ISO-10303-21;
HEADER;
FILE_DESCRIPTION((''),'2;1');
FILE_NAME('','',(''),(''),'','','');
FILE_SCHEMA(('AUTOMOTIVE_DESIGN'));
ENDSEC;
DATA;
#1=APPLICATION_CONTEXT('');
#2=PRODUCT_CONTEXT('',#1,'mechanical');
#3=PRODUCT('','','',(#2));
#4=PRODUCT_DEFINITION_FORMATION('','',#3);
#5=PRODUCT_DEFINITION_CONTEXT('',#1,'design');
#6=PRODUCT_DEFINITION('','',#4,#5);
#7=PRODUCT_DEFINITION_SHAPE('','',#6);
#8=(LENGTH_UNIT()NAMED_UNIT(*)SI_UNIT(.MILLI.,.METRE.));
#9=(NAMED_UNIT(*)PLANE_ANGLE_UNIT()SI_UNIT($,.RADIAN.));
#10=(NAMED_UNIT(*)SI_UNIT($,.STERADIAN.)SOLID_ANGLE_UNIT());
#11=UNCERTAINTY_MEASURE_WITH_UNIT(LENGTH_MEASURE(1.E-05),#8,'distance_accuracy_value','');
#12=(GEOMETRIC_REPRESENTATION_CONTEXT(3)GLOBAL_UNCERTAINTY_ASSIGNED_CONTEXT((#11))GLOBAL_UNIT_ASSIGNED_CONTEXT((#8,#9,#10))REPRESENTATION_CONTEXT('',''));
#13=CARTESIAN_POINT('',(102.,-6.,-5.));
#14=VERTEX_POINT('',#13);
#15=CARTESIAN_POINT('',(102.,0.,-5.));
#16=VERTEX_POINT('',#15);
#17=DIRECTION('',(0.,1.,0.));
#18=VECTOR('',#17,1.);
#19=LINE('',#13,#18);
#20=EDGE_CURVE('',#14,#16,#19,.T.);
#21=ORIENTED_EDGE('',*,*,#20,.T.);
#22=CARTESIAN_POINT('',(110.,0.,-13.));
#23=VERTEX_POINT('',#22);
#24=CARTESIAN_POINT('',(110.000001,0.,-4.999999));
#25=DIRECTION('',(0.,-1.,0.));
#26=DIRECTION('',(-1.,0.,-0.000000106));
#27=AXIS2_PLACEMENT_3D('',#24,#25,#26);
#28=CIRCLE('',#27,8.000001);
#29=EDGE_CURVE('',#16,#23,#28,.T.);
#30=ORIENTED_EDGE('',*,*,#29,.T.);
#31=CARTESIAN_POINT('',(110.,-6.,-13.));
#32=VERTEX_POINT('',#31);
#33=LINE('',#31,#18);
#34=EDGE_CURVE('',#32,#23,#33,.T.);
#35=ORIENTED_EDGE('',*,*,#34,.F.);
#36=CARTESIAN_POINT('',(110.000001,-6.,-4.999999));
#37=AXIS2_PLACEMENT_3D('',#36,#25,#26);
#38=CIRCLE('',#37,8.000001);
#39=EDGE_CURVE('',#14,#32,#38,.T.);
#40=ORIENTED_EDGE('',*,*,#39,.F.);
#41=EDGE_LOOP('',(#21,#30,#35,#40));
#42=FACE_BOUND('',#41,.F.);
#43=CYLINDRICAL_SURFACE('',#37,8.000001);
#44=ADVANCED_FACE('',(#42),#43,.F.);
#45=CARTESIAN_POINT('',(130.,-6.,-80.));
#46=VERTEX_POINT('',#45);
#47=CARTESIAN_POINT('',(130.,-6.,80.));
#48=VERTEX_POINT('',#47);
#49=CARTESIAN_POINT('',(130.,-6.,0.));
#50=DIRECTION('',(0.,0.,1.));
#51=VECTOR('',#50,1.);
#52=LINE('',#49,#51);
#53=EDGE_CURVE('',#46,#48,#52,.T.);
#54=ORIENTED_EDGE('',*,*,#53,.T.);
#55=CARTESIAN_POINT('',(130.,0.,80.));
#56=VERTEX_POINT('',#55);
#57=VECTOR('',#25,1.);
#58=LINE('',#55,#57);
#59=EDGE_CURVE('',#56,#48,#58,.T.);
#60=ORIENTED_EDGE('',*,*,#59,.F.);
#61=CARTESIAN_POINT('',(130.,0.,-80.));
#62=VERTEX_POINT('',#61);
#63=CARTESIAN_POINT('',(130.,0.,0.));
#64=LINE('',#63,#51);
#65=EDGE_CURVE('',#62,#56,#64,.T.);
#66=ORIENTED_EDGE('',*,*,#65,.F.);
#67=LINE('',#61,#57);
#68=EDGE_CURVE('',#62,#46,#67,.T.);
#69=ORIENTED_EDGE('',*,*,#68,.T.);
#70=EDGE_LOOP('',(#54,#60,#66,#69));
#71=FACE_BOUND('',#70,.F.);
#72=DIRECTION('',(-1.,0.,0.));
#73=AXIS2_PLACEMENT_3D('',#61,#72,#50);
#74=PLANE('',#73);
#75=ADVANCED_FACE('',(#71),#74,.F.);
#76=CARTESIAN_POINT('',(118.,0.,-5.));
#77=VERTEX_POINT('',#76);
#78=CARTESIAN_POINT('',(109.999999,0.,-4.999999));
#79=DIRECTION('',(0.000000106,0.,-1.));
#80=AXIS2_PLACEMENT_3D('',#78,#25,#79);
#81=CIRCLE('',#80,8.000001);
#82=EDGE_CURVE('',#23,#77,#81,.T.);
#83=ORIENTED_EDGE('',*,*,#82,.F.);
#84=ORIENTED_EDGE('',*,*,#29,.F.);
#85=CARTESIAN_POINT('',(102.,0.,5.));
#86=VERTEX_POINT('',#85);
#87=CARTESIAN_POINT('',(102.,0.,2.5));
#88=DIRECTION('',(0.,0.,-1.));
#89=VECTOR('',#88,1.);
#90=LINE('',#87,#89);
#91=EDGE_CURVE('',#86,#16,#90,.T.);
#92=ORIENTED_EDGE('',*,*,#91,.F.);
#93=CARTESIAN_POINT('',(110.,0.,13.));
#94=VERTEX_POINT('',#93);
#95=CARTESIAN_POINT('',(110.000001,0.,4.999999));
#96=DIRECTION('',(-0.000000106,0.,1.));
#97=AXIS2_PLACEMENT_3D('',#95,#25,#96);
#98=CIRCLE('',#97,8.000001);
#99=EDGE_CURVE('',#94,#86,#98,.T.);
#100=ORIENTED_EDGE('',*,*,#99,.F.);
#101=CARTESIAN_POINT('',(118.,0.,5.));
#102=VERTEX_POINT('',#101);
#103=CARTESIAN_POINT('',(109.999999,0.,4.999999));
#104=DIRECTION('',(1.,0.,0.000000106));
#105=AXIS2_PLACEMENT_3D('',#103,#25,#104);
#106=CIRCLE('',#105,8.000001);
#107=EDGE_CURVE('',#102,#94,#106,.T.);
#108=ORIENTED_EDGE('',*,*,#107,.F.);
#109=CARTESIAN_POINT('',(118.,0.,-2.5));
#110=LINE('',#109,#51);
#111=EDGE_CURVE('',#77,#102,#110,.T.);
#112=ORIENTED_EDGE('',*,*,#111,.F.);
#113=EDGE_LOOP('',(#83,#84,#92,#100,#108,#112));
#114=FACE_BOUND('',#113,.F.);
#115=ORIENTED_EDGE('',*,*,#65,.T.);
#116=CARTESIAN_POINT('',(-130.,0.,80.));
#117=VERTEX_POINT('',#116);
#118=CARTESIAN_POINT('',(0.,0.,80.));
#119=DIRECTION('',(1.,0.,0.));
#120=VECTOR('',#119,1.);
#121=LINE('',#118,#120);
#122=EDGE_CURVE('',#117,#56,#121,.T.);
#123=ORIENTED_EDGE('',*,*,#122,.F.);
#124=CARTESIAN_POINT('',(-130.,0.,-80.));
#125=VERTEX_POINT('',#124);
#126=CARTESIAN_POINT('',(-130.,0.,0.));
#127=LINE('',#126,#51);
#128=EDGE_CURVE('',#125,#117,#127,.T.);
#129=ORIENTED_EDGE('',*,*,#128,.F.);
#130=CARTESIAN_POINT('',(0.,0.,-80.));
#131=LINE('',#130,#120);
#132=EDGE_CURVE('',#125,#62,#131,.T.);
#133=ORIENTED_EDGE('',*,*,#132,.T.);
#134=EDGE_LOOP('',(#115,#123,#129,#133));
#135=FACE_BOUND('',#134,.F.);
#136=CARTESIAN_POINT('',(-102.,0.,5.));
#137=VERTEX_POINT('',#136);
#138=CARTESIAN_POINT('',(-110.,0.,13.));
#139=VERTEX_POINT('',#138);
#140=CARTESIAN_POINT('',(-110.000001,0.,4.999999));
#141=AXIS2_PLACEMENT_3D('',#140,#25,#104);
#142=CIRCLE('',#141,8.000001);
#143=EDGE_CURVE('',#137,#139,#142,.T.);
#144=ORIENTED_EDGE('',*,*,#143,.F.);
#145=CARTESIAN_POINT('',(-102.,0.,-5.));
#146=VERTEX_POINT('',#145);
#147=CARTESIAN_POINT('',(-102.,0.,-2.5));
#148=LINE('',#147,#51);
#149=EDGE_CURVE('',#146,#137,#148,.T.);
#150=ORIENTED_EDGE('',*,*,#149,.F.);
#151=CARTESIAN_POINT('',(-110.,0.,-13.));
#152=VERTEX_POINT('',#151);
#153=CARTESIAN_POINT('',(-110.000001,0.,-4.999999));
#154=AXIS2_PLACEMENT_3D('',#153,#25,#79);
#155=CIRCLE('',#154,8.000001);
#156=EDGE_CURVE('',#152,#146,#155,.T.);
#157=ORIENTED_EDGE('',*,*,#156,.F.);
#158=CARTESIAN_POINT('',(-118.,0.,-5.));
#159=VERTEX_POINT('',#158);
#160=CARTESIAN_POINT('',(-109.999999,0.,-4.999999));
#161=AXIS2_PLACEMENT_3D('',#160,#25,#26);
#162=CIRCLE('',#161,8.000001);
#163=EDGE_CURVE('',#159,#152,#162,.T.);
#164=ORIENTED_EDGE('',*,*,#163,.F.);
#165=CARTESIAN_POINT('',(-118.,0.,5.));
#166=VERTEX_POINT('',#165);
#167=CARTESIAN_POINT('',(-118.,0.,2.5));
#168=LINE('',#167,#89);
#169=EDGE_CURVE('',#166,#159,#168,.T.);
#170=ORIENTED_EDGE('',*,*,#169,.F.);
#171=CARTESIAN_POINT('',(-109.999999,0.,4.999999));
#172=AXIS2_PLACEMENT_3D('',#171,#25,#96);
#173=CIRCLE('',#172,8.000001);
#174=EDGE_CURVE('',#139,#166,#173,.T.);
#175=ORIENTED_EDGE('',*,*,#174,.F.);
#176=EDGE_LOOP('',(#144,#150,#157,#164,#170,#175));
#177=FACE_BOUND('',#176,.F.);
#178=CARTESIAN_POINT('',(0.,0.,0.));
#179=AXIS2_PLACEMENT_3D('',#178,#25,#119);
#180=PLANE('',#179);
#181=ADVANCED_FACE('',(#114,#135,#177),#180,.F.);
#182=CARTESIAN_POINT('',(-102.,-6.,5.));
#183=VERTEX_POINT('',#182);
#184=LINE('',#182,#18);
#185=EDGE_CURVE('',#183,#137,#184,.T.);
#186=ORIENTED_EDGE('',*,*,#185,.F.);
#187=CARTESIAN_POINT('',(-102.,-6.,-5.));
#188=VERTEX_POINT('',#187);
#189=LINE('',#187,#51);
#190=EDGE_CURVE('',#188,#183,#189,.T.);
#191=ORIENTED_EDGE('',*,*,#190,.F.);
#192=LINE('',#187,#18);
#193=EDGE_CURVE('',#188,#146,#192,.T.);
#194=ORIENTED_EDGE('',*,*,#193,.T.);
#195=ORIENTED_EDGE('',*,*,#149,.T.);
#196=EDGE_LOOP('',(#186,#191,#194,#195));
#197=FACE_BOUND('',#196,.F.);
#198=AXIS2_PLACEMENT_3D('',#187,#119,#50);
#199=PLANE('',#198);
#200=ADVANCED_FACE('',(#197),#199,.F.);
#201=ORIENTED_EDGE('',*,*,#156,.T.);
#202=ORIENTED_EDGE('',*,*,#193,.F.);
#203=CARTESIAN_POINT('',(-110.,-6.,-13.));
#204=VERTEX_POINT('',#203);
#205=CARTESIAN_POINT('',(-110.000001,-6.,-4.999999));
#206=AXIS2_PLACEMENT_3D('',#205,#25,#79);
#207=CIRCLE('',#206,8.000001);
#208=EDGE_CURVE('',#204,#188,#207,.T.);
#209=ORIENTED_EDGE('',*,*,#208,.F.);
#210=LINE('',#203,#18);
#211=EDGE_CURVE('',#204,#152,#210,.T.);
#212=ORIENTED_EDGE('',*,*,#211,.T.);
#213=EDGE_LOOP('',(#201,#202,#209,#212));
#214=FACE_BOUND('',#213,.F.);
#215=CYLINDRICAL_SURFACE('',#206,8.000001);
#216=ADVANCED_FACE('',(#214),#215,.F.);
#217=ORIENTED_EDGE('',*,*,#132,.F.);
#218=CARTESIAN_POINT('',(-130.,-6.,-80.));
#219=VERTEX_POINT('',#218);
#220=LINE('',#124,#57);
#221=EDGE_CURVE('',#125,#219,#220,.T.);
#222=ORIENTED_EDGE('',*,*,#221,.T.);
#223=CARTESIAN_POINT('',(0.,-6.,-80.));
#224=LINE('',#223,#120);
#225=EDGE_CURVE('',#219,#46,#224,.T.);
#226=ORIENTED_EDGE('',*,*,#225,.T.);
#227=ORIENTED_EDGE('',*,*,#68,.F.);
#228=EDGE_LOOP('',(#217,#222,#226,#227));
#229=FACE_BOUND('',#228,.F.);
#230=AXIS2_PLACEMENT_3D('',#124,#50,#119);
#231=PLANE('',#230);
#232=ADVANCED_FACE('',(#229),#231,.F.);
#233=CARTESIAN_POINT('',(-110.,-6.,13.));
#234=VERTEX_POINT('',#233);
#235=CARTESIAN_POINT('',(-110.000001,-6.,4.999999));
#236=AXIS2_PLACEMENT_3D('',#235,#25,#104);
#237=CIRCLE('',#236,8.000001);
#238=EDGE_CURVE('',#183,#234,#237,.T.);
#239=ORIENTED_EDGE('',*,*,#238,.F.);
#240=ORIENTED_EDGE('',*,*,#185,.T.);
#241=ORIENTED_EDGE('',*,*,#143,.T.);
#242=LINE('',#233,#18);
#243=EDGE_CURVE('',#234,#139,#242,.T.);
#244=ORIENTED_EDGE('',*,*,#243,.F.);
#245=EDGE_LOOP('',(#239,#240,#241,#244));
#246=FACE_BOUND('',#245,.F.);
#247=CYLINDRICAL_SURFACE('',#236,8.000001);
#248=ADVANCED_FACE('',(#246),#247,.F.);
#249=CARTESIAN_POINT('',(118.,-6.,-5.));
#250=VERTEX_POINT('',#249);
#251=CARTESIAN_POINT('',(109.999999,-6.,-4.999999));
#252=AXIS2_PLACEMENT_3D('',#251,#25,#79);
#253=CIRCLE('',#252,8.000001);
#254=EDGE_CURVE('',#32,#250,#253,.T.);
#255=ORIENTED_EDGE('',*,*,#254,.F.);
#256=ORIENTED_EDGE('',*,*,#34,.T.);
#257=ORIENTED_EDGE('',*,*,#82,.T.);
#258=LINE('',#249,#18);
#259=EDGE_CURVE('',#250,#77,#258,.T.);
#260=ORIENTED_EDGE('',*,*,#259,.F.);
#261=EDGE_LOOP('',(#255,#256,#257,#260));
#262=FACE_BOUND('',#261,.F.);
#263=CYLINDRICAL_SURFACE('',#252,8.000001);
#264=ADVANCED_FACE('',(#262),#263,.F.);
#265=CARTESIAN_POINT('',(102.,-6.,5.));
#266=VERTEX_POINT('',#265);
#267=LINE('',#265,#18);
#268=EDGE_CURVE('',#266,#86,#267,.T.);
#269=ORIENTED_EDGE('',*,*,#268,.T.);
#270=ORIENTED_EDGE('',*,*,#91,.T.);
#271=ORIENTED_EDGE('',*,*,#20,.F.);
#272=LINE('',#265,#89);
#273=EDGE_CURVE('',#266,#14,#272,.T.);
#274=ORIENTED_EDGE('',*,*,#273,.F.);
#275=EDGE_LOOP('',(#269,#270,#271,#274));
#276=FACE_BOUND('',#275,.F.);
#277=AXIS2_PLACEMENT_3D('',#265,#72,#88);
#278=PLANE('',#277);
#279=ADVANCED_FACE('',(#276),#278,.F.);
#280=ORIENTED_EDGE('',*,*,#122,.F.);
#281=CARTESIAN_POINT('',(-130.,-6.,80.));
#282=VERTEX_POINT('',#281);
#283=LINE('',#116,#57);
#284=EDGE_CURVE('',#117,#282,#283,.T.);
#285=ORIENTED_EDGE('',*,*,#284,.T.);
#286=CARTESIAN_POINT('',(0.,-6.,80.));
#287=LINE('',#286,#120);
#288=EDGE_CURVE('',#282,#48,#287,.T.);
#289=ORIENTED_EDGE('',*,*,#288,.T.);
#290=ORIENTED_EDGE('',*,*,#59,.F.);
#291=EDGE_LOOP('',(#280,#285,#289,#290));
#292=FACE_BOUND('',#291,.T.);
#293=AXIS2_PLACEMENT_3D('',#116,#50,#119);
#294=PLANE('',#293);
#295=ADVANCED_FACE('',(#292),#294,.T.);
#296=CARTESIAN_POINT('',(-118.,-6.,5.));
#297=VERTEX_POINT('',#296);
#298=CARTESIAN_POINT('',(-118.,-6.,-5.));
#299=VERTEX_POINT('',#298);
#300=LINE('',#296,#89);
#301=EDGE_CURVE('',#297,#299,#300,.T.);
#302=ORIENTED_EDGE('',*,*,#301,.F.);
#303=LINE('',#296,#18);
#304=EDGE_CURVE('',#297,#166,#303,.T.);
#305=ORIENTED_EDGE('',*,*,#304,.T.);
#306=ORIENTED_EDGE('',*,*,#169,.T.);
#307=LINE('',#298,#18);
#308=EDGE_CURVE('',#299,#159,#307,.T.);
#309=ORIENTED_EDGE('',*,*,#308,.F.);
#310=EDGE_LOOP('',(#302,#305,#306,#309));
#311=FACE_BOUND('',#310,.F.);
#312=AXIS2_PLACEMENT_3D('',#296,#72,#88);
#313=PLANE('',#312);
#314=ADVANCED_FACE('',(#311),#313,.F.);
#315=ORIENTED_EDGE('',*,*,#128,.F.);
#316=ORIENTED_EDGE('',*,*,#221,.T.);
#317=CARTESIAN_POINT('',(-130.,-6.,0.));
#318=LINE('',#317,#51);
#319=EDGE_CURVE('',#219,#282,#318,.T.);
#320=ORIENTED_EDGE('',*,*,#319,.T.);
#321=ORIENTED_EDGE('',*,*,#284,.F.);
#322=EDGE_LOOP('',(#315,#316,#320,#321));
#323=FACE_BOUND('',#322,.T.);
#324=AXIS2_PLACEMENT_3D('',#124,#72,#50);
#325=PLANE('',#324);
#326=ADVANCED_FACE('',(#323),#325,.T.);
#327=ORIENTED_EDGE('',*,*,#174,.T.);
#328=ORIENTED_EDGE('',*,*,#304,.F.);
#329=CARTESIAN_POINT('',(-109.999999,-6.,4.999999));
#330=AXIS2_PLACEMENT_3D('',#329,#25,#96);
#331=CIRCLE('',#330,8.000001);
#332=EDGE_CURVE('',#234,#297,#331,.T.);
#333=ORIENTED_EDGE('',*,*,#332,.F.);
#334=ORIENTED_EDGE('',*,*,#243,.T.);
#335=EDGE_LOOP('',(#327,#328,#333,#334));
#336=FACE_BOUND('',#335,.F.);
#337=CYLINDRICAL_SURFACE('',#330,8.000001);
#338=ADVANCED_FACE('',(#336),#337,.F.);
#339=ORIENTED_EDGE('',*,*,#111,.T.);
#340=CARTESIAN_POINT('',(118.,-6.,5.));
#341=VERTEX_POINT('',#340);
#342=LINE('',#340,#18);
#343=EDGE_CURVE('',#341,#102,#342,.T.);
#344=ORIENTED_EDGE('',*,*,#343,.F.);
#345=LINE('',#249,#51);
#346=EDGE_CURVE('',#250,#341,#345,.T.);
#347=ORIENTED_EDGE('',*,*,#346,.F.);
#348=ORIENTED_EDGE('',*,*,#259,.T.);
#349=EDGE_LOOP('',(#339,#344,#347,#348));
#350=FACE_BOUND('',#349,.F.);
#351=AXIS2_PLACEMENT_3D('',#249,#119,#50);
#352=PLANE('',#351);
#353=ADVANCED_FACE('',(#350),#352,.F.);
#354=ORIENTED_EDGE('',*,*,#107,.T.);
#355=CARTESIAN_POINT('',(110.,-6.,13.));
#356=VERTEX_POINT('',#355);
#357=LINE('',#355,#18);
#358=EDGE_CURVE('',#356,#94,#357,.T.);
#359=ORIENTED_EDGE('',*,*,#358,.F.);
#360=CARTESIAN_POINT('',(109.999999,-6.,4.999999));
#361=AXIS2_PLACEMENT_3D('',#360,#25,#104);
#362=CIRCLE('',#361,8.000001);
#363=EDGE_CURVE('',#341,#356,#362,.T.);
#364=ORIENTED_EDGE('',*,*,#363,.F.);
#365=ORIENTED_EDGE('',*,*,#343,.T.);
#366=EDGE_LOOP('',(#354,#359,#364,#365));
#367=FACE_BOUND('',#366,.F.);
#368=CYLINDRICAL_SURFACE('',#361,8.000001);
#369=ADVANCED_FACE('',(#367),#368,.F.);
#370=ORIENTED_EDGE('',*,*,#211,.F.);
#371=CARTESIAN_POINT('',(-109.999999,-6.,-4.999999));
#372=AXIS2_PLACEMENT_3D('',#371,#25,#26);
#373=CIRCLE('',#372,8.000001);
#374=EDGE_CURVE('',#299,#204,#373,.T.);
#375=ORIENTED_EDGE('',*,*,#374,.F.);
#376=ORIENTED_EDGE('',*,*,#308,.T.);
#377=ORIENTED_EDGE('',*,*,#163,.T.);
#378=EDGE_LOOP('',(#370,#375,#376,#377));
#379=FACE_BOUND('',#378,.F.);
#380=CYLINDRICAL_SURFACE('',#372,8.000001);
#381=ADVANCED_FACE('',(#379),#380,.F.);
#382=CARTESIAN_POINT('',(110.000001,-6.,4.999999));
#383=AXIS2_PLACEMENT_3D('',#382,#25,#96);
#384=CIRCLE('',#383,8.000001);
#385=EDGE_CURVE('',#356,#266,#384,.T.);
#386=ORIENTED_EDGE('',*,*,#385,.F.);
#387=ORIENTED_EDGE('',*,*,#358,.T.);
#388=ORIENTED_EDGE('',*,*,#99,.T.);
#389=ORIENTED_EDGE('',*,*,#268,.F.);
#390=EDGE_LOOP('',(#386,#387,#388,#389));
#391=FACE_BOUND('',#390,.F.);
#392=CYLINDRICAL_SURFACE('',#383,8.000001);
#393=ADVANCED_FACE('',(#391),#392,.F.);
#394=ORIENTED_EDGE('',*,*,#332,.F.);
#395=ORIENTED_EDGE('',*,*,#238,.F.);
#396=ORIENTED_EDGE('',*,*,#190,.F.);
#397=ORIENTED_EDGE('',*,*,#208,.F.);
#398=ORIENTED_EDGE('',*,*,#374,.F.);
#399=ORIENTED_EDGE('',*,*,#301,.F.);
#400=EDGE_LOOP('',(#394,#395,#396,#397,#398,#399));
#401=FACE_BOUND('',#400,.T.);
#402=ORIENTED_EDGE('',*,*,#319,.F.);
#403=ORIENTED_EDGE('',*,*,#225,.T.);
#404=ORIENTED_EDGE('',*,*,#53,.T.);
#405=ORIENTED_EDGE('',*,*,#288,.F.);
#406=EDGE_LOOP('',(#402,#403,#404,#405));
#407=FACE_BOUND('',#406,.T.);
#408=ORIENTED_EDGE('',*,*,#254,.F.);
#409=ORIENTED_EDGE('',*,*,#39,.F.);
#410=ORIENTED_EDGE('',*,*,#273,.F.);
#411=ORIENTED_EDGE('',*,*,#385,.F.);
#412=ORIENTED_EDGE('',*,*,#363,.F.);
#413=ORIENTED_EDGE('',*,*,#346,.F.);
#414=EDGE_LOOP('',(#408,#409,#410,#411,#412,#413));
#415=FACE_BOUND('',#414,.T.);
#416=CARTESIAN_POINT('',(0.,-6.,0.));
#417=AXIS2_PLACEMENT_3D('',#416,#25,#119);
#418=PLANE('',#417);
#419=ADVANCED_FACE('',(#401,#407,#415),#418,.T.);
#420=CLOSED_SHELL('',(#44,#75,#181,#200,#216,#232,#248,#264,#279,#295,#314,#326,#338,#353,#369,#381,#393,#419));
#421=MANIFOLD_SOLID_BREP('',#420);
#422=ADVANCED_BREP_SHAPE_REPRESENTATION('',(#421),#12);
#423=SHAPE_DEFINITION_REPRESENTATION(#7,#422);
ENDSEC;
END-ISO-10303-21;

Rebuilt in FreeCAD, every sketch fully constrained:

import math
import FreeCAD as App
import Part
import Sketcher
from FreeCAD import Vector

doc = App.newDocument("Part")
params = doc.addObject("Spreadsheet::Sheet", "Params")
for row, (alias, value) in enumerate([
    ("sketch1_width", "260 mm"),
    ("sketch1_height", "160 mm"),
    ("pad1_length", "6 mm"),
    ("sketch2_radius", "8.000001 mm"),
    ("sketch2_height", "10 mm"),
], start=1):
    params.set(f"A{row}", alias)
    params.set(f"B{row}", "=" + value)
    params.setAlias(f"B{row}", alias)

body = doc.addObject("PartDesign::Body", "Body")

sketch1 = body.newObject("Sketcher::SketchObject", "Sketch")
sketch1.AttachmentSupport = (doc.getObject("XZ_Plane"), [""])
sketch1.MapMode = "FlatFace"
sketch1.addGeometry(Part.LineSegment(Vector(-130, 80, 0), Vector(-130, -80, 0)), False)
sketch1.addGeometry(Part.LineSegment(Vector(-130, -80, 0), Vector(130, -80, 0)), False)
sketch1.addGeometry(Part.LineSegment(Vector(130, -80, 0), Vector(130, 80, 0)), False)
sketch1.addGeometry(Part.LineSegment(Vector(130, 80, 0), Vector(-130, 80, 0)), False)
sketch1.addConstraint(Sketcher.Constraint("Coincident", 0, 2, 1, 1))
sketch1.addConstraint(Sketcher.Constraint("Coincident", 1, 2, 2, 1))
sketch1.addConstraint(Sketcher.Constraint("Coincident", 2, 2, 3, 1))
sketch1.addConstraint(Sketcher.Constraint("Coincident", 3, 2, 0, 1))
sketch1.addConstraint(Sketcher.Constraint("Vertical", 0))
sketch1.addConstraint(Sketcher.Constraint("Horizontal", 1))
sketch1.addConstraint(Sketcher.Constraint("Vertical", 2))
sketch1.addConstraint(Sketcher.Constraint("Horizontal", 3))
sketch1.addConstraint(Sketcher.Constraint("Symmetric", 0, 2, 2, 2, -1, 1))
sketch1.addConstraint(Sketcher.Constraint("DistanceX", 1, 1, 1, 2, 260.0))
sketch1.addConstraint(Sketcher.Constraint("DistanceY", 0, 2, 0, 1, 160.0))
sketch1.setExpression("Constraints[9]", "Params.sketch1_width")
sketch1.setExpression("Constraints[10]", "Params.sketch1_height")
pad1 = body.newObject("PartDesign::Pad", "Pad")
pad1.Profile = sketch1
pad1.setExpression("Length", "Params.pad1_length")

sketch2 = body.newObject("Sketcher::SketchObject", "Sketch001")
sketch2.AttachmentSupport = (doc.getObject("XZ_Plane"), [""])
sketch2.MapMode = "FlatFace"
sketch2.AttachmentOffset = App.Placement(Vector(0, 0, 6), App.Rotation())
sketch2.addGeometry(Part.ArcOfCircle(Part.Circle(Vector(-110, -5, 0), Vector(0, 0, 1), 8), math.radians(-90), math.radians(0)), False)
sketch2.addGeometry(Part.LineSegment(Vector(-102, -5, 0), Vector(-102, 5, 0)), False)
sketch2.addGeometry(Part.ArcOfCircle(Part.Circle(Vector(-110, 5, 0), Vector(0, 0, 1), 8), math.radians(0), math.radians(90)), False)
sketch2.addGeometry(Part.ArcOfCircle(Part.Circle(Vector(-110, 5, 0), Vector(0, 0, 1), 8), math.radians(90), math.radians(180)), False)
sketch2.addGeometry(Part.LineSegment(Vector(-118, 5, 0), Vector(-118, -5, 0)), False)
sketch2.addGeometry(Part.ArcOfCircle(Part.Circle(Vector(-110, -5, 0), Vector(0, 0, 1), 8), math.radians(-180), math.radians(-90)), False)
sketch2.addGeometry(Part.ArcOfCircle(Part.Circle(Vector(110, -5, 0), Vector(0, 0, 1), 8), math.radians(-90), math.radians(0)), False)
sketch2.addGeometry(Part.LineSegment(Vector(118, -5, 0), Vector(118, 5, 0)), False)
sketch2.addGeometry(Part.ArcOfCircle(Part.Circle(Vector(110, 5, 0), Vector(0, 0, 1), 8), math.radians(0), math.radians(90)), False)
sketch2.addGeometry(Part.ArcOfCircle(Part.Circle(Vector(110, 5, 0), Vector(0, 0, 1), 8), math.radians(90), math.radians(180)), False)
sketch2.addGeometry(Part.LineSegment(Vector(102, 5, 0), Vector(102, -5, 0)), False)
sketch2.addGeometry(Part.ArcOfCircle(Part.Circle(Vector(110, -5, 0), Vector(0, 0, 1), 8), math.radians(-180), math.radians(-90)), False)
sketch2.addConstraint(Sketcher.Constraint("Tangent", 0, 2, 1, 1))
sketch2.addConstraint(Sketcher.Constraint("Tangent", 1, 2, 2, 1))
sketch2.addConstraint(Sketcher.Constraint("Tangent", 2, 2, 3, 1))
sketch2.addConstraint(Sketcher.Constraint("Tangent", 3, 2, 4, 1))
sketch2.addConstraint(Sketcher.Constraint("Tangent", 4, 2, 5, 1))
sketch2.addConstraint(Sketcher.Constraint("Tangent", 5, 2, 0, 1))
sketch2.addConstraint(Sketcher.Constraint("Tangent", 6, 2, 7, 1))
sketch2.addConstraint(Sketcher.Constraint("Tangent", 7, 2, 8, 1))
sketch2.addConstraint(Sketcher.Constraint("Tangent", 8, 2, 9, 1))
sketch2.addConstraint(Sketcher.Constraint("Tangent", 9, 2, 10, 1))
sketch2.addConstraint(Sketcher.Constraint("Tangent", 10, 2, 11, 1))
sketch2.addConstraint(Sketcher.Constraint("Tangent", 11, 2, 6, 1))
sketch2.addConstraint(Sketcher.Constraint("Vertical", 1))
sketch2.addConstraint(Sketcher.Constraint("Vertical", 4))
sketch2.addConstraint(Sketcher.Constraint("Vertical", 7))
sketch2.addConstraint(Sketcher.Constraint("Vertical", 10))
sketch2.addConstraint(Sketcher.Constraint("Equal", 0, 2))
sketch2.addConstraint(Sketcher.Constraint("Equal", 2, 3))
sketch2.addConstraint(Sketcher.Constraint("Equal", 5, 6))
sketch2.addConstraint(Sketcher.Constraint("Equal", 6, 8))
sketch2.addConstraint(Sketcher.Constraint("Equal", 8, 9))
sketch2.addConstraint(Sketcher.Constraint("Symmetric", 2, 3, 6, 3, -1, 1))
sketch2.addConstraint(Sketcher.Constraint("Symmetric", 5, 2, 8, 2, -1, 1))
sketch2.addConstraint(Sketcher.Constraint("Symmetric", 2, 2, 8, 2, -2))
sketch2.addConstraint(Sketcher.Constraint("Vertical", 5, 3, 2, 2))
sketch2.addConstraint(Sketcher.Constraint("Vertical", 8, 2, 11, 2))
sketch2.addConstraint(Sketcher.Constraint("Radius", 0, 8.000001))
sketch2.addConstraint(Sketcher.Constraint("DistanceY", 1, 1, 1, 2, 10.0))
sketch2.addConstraint(Sketcher.Constraint("DistanceX", 0, 3, -1, 1, 110.000001))
sketch2.setExpression("Constraints[26]", "Params.sketch2_radius")
sketch2.setExpression("Constraints[27]", "Params.sketch2_height")
pocket1 = body.newObject("PartDesign::Pocket", "Pocket")
pocket1.Profile = sketch2
pocket1.Type = "ThroughAll"

doc.recompute()
